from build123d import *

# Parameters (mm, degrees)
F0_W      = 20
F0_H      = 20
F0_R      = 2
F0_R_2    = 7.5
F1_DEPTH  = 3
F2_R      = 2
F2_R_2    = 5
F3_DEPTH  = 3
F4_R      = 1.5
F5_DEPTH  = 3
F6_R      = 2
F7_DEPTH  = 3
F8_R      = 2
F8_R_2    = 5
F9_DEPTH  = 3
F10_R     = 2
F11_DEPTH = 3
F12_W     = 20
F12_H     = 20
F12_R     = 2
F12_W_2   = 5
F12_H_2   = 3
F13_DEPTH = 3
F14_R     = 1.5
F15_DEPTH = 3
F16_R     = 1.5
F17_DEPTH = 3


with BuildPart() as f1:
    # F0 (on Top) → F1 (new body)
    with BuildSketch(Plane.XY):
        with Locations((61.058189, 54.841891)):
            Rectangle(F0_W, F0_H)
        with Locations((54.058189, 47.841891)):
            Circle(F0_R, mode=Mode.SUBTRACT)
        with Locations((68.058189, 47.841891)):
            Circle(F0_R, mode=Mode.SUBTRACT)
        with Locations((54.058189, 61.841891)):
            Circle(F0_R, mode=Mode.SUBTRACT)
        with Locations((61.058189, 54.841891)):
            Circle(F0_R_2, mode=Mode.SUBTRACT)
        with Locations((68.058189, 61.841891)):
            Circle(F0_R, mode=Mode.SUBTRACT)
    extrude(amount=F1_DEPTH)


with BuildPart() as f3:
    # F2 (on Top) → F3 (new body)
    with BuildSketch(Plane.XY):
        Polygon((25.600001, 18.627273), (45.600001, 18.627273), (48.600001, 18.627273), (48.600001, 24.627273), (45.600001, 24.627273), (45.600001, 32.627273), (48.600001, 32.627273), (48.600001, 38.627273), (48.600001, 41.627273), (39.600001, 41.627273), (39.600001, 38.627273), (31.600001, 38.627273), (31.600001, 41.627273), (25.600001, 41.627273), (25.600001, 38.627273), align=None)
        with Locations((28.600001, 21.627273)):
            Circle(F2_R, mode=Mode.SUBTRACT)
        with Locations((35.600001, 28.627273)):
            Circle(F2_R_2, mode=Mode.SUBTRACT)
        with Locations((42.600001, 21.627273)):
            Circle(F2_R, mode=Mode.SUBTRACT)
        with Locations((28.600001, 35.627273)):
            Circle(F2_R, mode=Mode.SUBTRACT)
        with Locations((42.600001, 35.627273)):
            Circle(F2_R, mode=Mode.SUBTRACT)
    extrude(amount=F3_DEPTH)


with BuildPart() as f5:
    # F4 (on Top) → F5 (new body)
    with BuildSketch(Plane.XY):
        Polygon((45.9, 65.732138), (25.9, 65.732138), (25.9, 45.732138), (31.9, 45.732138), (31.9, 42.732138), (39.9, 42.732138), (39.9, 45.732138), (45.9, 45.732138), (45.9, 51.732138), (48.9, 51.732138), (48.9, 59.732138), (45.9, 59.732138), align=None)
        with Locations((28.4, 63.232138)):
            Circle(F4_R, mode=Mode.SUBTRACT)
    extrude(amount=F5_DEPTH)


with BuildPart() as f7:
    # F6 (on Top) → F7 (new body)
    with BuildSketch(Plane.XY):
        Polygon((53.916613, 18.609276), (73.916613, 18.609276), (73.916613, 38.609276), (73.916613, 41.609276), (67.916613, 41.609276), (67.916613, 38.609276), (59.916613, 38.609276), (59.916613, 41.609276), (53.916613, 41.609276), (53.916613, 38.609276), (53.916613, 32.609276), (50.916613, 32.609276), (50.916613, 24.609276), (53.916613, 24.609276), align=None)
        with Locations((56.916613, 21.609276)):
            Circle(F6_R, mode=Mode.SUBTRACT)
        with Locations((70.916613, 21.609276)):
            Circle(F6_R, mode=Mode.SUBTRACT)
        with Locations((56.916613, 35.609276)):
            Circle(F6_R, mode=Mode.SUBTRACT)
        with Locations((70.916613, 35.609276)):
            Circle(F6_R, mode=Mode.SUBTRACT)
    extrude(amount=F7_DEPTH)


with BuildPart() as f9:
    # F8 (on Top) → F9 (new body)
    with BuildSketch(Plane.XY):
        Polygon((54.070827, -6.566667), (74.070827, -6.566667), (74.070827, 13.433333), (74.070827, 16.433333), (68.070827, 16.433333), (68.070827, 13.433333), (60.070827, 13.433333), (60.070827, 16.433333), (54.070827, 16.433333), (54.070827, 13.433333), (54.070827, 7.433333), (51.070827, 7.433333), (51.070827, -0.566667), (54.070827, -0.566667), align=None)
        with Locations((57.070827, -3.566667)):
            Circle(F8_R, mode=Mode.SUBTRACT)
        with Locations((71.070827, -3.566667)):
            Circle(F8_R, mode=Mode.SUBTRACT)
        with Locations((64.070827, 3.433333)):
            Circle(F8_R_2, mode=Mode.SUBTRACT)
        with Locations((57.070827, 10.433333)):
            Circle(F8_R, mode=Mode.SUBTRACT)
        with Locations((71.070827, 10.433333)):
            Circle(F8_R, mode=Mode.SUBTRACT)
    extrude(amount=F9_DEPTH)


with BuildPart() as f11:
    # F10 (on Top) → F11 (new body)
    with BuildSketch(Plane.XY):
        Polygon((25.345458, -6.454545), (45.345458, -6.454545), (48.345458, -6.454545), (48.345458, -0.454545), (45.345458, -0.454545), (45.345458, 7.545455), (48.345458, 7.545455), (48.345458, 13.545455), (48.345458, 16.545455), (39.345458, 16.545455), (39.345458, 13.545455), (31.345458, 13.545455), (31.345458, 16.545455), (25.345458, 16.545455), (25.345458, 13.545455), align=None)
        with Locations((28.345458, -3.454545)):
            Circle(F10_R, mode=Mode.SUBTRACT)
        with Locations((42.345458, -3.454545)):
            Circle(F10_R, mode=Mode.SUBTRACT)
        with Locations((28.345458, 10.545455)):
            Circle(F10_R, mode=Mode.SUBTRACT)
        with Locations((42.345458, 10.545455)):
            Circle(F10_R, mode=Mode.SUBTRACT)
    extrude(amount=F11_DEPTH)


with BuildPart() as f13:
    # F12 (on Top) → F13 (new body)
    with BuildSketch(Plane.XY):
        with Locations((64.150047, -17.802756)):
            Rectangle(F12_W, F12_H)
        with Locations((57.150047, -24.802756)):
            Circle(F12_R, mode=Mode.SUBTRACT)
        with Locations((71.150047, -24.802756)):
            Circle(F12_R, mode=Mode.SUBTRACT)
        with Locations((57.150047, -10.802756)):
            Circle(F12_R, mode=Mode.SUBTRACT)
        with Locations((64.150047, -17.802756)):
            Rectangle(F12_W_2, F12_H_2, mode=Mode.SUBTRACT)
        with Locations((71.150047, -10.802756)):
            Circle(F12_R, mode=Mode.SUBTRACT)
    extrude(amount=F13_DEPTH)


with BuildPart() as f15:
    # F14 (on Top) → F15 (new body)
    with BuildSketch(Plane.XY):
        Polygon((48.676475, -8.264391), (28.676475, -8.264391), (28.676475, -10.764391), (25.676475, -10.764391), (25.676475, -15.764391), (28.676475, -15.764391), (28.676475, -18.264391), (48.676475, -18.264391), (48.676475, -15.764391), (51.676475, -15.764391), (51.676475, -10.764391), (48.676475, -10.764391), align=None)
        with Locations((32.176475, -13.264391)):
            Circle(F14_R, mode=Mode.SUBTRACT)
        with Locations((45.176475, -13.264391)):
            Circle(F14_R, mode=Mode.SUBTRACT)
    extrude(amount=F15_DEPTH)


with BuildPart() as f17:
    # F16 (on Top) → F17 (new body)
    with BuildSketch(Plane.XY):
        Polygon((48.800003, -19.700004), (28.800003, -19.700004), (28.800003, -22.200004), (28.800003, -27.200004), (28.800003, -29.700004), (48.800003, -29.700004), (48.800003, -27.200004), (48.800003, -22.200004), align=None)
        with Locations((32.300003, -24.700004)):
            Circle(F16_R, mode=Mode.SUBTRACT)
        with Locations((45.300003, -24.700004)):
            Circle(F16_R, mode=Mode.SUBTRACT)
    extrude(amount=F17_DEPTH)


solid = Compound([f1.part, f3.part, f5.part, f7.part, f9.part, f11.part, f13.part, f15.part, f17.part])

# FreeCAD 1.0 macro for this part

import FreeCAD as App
import Part
import Sketcher


def add_polygon(sketch, points):
    """Adds a closed chain of lines whose ends are joined by coincident constraints."""
    first, n = sketch.GeometryCount, len(points)
    for a, b in zip(points, points[1:] + points[:1]):
        sketch.addGeometry(Part.LineSegment(App.Vector(*a, 0), App.Vector(*b, 0)), False)
    for i in range(n):
        sketch.addConstraint(Sketcher.Constraint("Coincident", first + i, 2, first + (i + 1) % n, 1))

doc = App.newDocument("Part")
body = doc.addObject("PartDesign::Body", "Body")

sketch1 = doc.addObject("Sketcher::SketchObject", "Sketch")
body.addObject(sketch1)
sketch1.AttachmentSupport = (doc.XY_Plane, [""])
sketch1.MapMode = "FlatFace"
add_polygon(sketch1, [(51.1, 64.8), (51.1, 44.8), (71.1, 44.8), (71.1, 64.8)])
sketch1.addGeometry(Part.Circle(App.Vector(54.1, 47.8, 0), App.Vector(0, 0, 1), 2), False)
sketch1.addGeometry(Part.Circle(App.Vector(68.1, 47.8, 0), App.Vector(0, 0, 1), 2), False)
sketch1.addGeometry(Part.Circle(App.Vector(54.1, 61.8, 0), App.Vector(0, 0, 1), 2), False)
sketch1.addGeometry(Part.Circle(App.Vector(61.1, 54.8, 0), App.Vector(0, 0, 1), 7.5), False)
sketch1.addGeometry(Part.Circle(App.Vector(68.1, 61.8, 0), App.Vector(0, 0, 1), 2), False)
sketch1.addConstraint([
    Sketcher.Constraint("Vertical", 0),
    Sketcher.Constraint("Horizontal", 1),
    Sketcher.Constraint("Vertical", 2),
    Sketcher.Constraint("Horizontal", 3),
    Sketcher.Constraint("Equal", 4, 5),
    Sketcher.Constraint("Equal", 5, 6),
    Sketcher.Constraint("Equal", 6, 8),
    Sketcher.Constraint("Horizontal", 4, 3, 5, 3),
    Sketcher.Constraint("Horizontal", 6, 3, 8, 3),
    Sketcher.Constraint("Vertical", 4, 3, 6, 3),
    Sketcher.Constraint("Vertical", 5, 3, 8, 3),
    Sketcher.Constraint("Equal", 3, 0),
    Sketcher.Constraint("Diameter", 4, 4.0),
    Sketcher.Constraint("Diameter", 7, 15.0),
    Sketcher.Constraint("DistanceX", 1, 1, 1, 2, 20.0),
    Sketcher.Constraint("DistanceX", 4, 3, 5, 3, 14.0),
    Sketcher.Constraint("DistanceY", 4, 3, 6, 3, 14.0),
    Sketcher.Constraint("DistanceX", 4, 3, 7, 3, 7.0),
    Sketcher.Constraint("DistanceY", 4, 3, 7, 3, 7.0),
    Sketcher.Constraint("DistanceX", 0, 2, 4, 3, 3.0),
    Sketcher.Constraint("DistanceY", 0, 2, 4, 3, 3.0),
    Sketcher.Constraint("DistanceX", -1, 1, 4, 3, 54.058189),
    Sketcher.Constraint("DistanceY", -1, 1, 4, 3, 47.841891),
])
pad1 = doc.addObject("PartDesign::Pad", "Pad")
body.addObject(pad1)
pad1.Profile = sketch1
pad1.Length = 3
body2 = doc.addObject("PartDesign::Body", "Body001")

sketch2 = doc.addObject("Sketcher::SketchObject", "Sketch001")
body2.addObject(sketch2)
sketch2.AttachmentSupport = (doc.getObject("XY_Plane001"), [""])
sketch2.MapMode = "FlatFace"
add_polygon(sketch2, [(25.6, 18.6), (48.6, 18.6), (48.6, 24.6), (45.6, 24.6), (45.6, 32.6), (48.6, 32.6), (48.6, 41.6), (39.6, 41.6), (39.6, 38.6), (31.6, 38.6), (31.6, 41.6), (25.6, 41.6)])
sketch2.addGeometry(Part.Circle(App.Vector(28.6, 21.6, 0), App.Vector(0, 0, 1), 2), False)
sketch2.addGeometry(Part.Circle(App.Vector(42.6, 21.6, 0), App.Vector(0, 0, 1), 2), False)
sketch2.addGeometry(Part.Circle(App.Vector(35.6, 28.6, 0), App.Vector(0, 0, 1), 5), False)
sketch2.addGeometry(Part.Circle(App.Vector(28.6, 35.6, 0), App.Vector(0, 0, 1), 2), False)
sketch2.addGeometry(Part.Circle(App.Vector(42.6, 35.6, 0), App.Vector(0, 0, 1), 2), False)
sketch2.addConstraint([
    Sketcher.Constraint("Horizontal", 0),
    Sketcher.Constraint("Vertical", 1),
    Sketcher.Constraint("Horizontal", 2),
    Sketcher.Constraint("Vertical", 3),
    Sketcher.Constraint("Horizontal", 4),
    Sketcher.Constraint("Vertical", 5),
    Sketcher.Constraint("Horizontal", 6),
    Sketcher.Constraint("Vertical", 7),
    Sketcher.Constraint("Horizontal", 8),
    Sketcher.Constraint("Vertical", 9),
    Sketcher.Constraint("Horizontal", 10),
    Sketcher.Constraint("Vertical", 11),
    Sketcher.Constraint("Equal", 12, 13),
    Sketcher.Constraint("Equal", 13, 15),
    Sketcher.Constraint("Equal", 15, 16),
    Sketcher.Constraint("Horizontal", 12, 3, 13, 3),
    Sketcher.Constraint("Horizontal", 15, 3, 16, 3),
    Sketcher.Constraint("Horizontal", 6, 2, 9, 2),
    Sketcher.Constraint("Vertical", 12, 3, 15, 3),
    Sketcher.Constraint("Vertical", 13, 3, 16, 3),
    Sketcher.Constraint("Vertical", 1, 2, 4, 2),
    Sketcher.Constraint("Equal", 10, 1),
    Sketcher.Constraint("Equal", 8, 3),
    Sketcher.Constraint("Equal", 6, 5),
    Sketcher.Constraint("Equal", 4, 7),
    Sketcher.Constraint("Diameter", 12, 4.0),
    Sketcher.Constraint("Diameter", 14, 10.0),
    Sketcher.Constraint("DistanceX", 0, 1, 0, 2, 23.0),
    Sketcher.Constraint("DistanceX", 2, 2, 2, 1, 3.0),
    Sketcher.Constraint("DistanceX", 6, 2, 6, 1, 9.0),
    Sketcher.Constraint("DistanceX", 8, 2, 8, 1, 8.0),
    Sketcher.Constraint("DistanceX", 12, 3, 13, 3, 14.0),
    Sketcher.Constraint("DistanceX", 12, 3, 14, 3, 7.0),
    Sketcher.Constraint("DistanceY", 12, 3, 14, 3, 7.0),
    Sketcher.Constraint("DistanceY", 14, 3, 15, 3, 7.0),
    Sketcher.Constraint("DistanceX", 13, 3, 0, 2, 6.0),
    Sketcher.Constraint("DistanceY", 0, 2, 13, 3, 3.0),
    Sketcher.Constraint("DistanceX", -1, 1, 12, 3, 28.600001),
    Sketcher.Constraint("DistanceY", -1, 1, 12, 3, 21.627273),
])
pad2 = doc.addObject("PartDesign::Pad", "Pad001")
body2.addObject(pad2)
pad2.Profile = sketch2
pad2.Length = 3
body3 = doc.addObject("PartDesign::Body", "Body002")

sketch3 = doc.addObject("Sketcher::SketchObject", "Sketch002")
body3.addObject(sketch3)
sketch3.AttachmentSupport = (doc.getObject("XY_Plane002"), [""])
sketch3.MapMode = "FlatFace"
add_polygon(sketch3, [(45.9, 65.7), (25.9, 65.7), (25.9, 45.7), (31.9, 45.7), (31.9, 42.7), (39.9, 42.7), (39.9, 45.7), (45.9, 45.7), (45.9, 51.7), (48.9, 51.7), (48.9, 59.7), (45.9, 59.7)])
sketch3.addGeometry(Part.Circle(App.Vector(28.4, 63.2, 0), App.Vector(0, 0, 1), 1.5), False)
sketch3.addConstraint([
    Sketcher.Constraint("Horizontal", 0),
    Sketcher.Constraint("Vertical", 1),
    Sketcher.Constraint("Horizontal", 2),
    Sketcher.Constraint("Vertical", 3),
    Sketcher.Constraint("Horizontal", 4),
    Sketcher.Constraint("Vertical", 5),
    Sketcher.Constraint("Horizontal", 6),
    Sketcher.Constraint("Vertical", 7),
    Sketcher.Constraint("Horizontal", 8),
    Sketcher.Constraint("Vertical", 9),
    Sketcher.Constraint("Horizontal", 10),
    Sketcher.Constraint("Vertical", 11),
    Sketcher.Constraint("Horizontal", 2, 2, 5, 2),
    Sketcher.Constraint("Vertical", 7, 2, 10, 2),
    Sketcher.Constraint("Equal", 2, 6),
    Sketcher.Constraint("Equal", 0, 1),
    Sketcher.Constraint("Equal", 10, 3),
    Sketcher.Constraint("Equal", 6, 7),
    Sketcher.Constraint("Equal", 4, 9),
    Sketcher.Constraint("Diameter", 12, 3.0),
    Sketcher.Constraint("DistanceX", 0, 2, 0, 1, 20.0),
    Sketcher.Constraint("DistanceX", 2, 1, 2, 2, 6.0),
    Sketcher.Constraint("DistanceX", 8, 1, 8, 2, 3.0),
    Sketcher.Constraint("DistanceX", -1, 1, 12, 3, 28.4),
    Sketcher.Constraint("DistanceX", -1, 1, 0, 2, 25.9),
    Sketcher.Constraint("DistanceY", 12, 3, 0, 2, 2.5),
    Sketcher.Constraint("DistanceY", -1, 1, 0, 2, 65.732138),
])
pad3 = doc.addObject("PartDesign::Pad", "Pad002")
body3.addObject(pad3)
pad3.Profile = sketch3
pad3.Length = 3
body4 = doc.addObject("PartDesign::Body", "Body003")

sketch4 = doc.addObject("Sketcher::SketchObject", "Sketch003")
body4.addObject(sketch4)
sketch4.AttachmentSupport = (doc.getObject("XY_Plane003"), [""])
sketch4.MapMode = "FlatFace"
add_polygon(sketch4, [(53.9, 18.6), (73.9, 18.6), (73.9, 41.6), (67.9, 41.6), (67.9, 38.6), (59.9, 38.6), (59.9, 41.6), (53.9, 41.6), (53.9, 32.6), (50.9, 32.6), (50.9, 24.6), (53.9, 24.6)])
sketch4.addGeometry(Part.Circle(App.Vector(56.9, 21.6, 0), App.Vector(0, 0, 1), 2), False)
sketch4.addGeometry(Part.Circle(App.Vector(70.9, 21.6, 0), App.Vector(0, 0, 1), 2), False)
sketch4.addGeometry(Part.Circle(App.Vector(56.9, 35.6, 0), App.Vector(0, 0, 1), 2), False)
sketch4.addGeometry(Part.Circle(App.Vector(70.9, 35.6, 0), App.Vector(0, 0, 1), 2), False)
sketch4.addConstraint([
    Sketcher.Constraint("Horizontal", 0),
    Sketcher.Constraint("Vertical", 1),
    Sketcher.Constraint("Horizontal", 2),
    Sketcher.Constraint("Vertical", 3),
    Sketcher.Constraint("Horizontal", 4),
    Sketcher.Constraint("Vertical", 5),
    Sketcher.Constraint("Horizontal", 6),
    Sketcher.Constraint("Vertical", 7),
    Sketcher.Constraint("Horizontal", 8),
    Sketcher.Constraint("Vertical", 9),
    Sketcher.Constraint("Horizontal", 10),
    Sketcher.Constraint("Vertical", 11),
    Sketcher.Constraint("Equal", 12, 13),
    Sketcher.Constraint("Equal", 13, 14),
    Sketcher.Constraint("Equal", 14, 15),
    Sketcher.Constraint("Horizontal", 12, 3, 13, 3),
    Sketcher.Constraint("Horizontal", 14, 3, 15, 3),
    Sketcher.Constraint("Horizontal", 2, 2, 5, 2),
    Sketcher.Constraint("Vertical", 12, 3, 14, 3),
    Sketcher.Constraint("Vertical", 13, 3, 15, 3),
    Sketcher.Constraint("Vertical", 7, 2, 10, 2),
    Sketcher.Constraint("Equal", 2, 6),
    Sketcher.Constraint("Equal", 10, 3),
    Sketcher.Constraint("Equal", 4, 9),
    Sketcher.Constraint("Equal", 6, 11),
    Sketcher.Constraint("Diameter", 12, 4.0),
    Sketcher.Constraint("DistanceX", 0, 1, 0, 2, 20.0),
    Sketcher.Constraint("DistanceX", 2, 2, 2, 1, 6.0),
    Sketcher.Constraint("DistanceX", 8, 2, 8, 1, 3.0),
    Sketcher.Constraint("DistanceY", 1, 1, 1, 2, 23.0),
    Sketcher.Constraint("DistanceX", 12, 3, 13, 3, 14.0),
    Sketcher.Constraint("DistanceY", 12, 3, 14, 3, 14.0),
    Sketcher.Constraint("DistanceX", 13, 3, 0, 2, 3.0),
    Sketcher.Constraint("DistanceY", 0, 2, 13, 3, 3.0),
    Sketcher.Constraint("DistanceX", -1, 1, 12, 3, 56.916613),
    Sketcher.Constraint("DistanceY", -1, 1, 12, 3, 21.609276),
])
pad4 = doc.addObject("PartDesign::Pad", "Pad003")
body4.addObject(pad4)
pad4.Profile = sketch4
pad4.Length = 3
body5 = doc.addObject("PartDesign::Body", "Body004")

sketch5 = doc.addObject("Sketcher::SketchObject", "Sketch004")
body5.addObject(sketch5)
sketch5.AttachmentSupport = (doc.getObject("XY_Plane004"), [""])
sketch5.MapMode = "FlatFace"
add_polygon(sketch5, [(54.1, -6.6), (74.1, -6.6), (74.1, 16.4), (68.1, 16.4), (68.1, 13.4), (60.1, 13.4), (60.1, 16.4), (54.1, 16.4), (54.1, 7.4), (51.1, 7.4), (51.1, -0.6), (54.1, -0.6)])
sketch5.addGeometry(Part.Circle(App.Vector(57.1, -3.6, 0), App.Vector(0, 0, 1), 2), False)
sketch5.addGeometry(Part.Circle(App.Vector(71.1, -3.6, 0), App.Vector(0, 0, 1), 2), False)
sketch5.addGeometry(Part.Circle(App.Vector(64.1, 3.4, 0), App.Vector(0, 0, 1), 5), False)
sketch5.addGeometry(Part.Circle(App.Vector(57.1, 10.4, 0), App.Vector(0, 0, 1), 2), False)
sketch5.addGeometry(Part.Circle(App.Vector(71.1, 10.4, 0), App.Vector(0, 0, 1), 2), False)
sketch5.addConstraint([
    Sketcher.Constraint("Horizontal", 0),
    Sketcher.Constraint("Vertical", 1),
    Sketcher.Constraint("Horizontal", 2),
    Sketcher.Constraint("Vertical", 3),
    Sketcher.Constraint("Horizontal", 4),
    Sketcher.Constraint("Vertical", 5),
    Sketcher.Constraint("Horizontal", 6),
    Sketcher.Constraint("Vertical", 7),
    Sketcher.Constraint("Horizontal", 8),
    Sketcher.Constraint("Vertical", 9),
    Sketcher.Constraint("Horizontal", 10),
    Sketcher.Constraint("Vertical", 11),
    Sketcher.Constraint("Equal", 12, 13),
    Sketcher.Constraint("Equal", 13, 15),
    Sketcher.Constraint("Equal", 15, 16),
    Sketcher.Constraint("Horizontal", 12, 3, 13, 3),
    Sketcher.Constraint("Horizontal", 15, 3, 16, 3),
    Sketcher.Constraint("Horizontal", 2, 2, 5, 2),
    Sketcher.Constraint("Vertical", 12, 3, 15, 3),
    Sketcher.Constraint("Vertical", 13, 3, 16, 3),
    Sketcher.Constraint("Vertical", 7, 2, 10, 2),
    Sketcher.Constraint("Equal", 2, 6),
    Sketcher.Constraint("Equal", 10, 3),
    Sketcher.Constraint("Equal", 4, 9),
    Sketcher.Constraint("Equal", 6, 11),
    Sketcher.Constraint("Diameter", 12, 4.0),
    Sketcher.Constraint("Diameter", 14, 10.0),
    Sketcher.Constraint("DistanceX", 0, 1, 0, 2, 20.0),
    Sketcher.Constraint("DistanceX", 2, 2, 2, 1, 6.0),
    Sketcher.Constraint("DistanceX", 8, 2, 8, 1, 3.0),
    Sketcher.Constraint("DistanceY", 1, 1, 1, 2, 23.0),
    Sketcher.Constraint("DistanceX", 12, 3, 13, 3, 14.0),
    Sketcher.Constraint("DistanceX", 12, 3, 14, 3, 7.0),
    Sketcher.Constraint("DistanceY", 12, 3, 14, 3, 7.0),
    Sketcher.Constraint("DistanceY", 14, 3, 15, 3, 7.0),
    Sketcher.Constraint("DistanceX", 13, 3, 0, 2, 3.0),
    Sketcher.Constraint("DistanceY", 0, 2, 13, 3, 3.0),
    Sketcher.Constraint("DistanceX", -1, 1, 12, 3, 57.070827),
    Sketcher.Constraint("DistanceY", 12, 3, -1, 1, 3.566667),
])
pad5 = doc.addObject("PartDesign::Pad", "Pad004")
body5.addObject(pad5)
pad5.Profile = sketch5
pad5.Length = 3
body6 = doc.addObject("PartDesign::Body", "Body005")

sketch6 = doc.addObject("Sketcher::SketchObject", "Sketch005")
body6.addObject(sketch6)
sketch6.AttachmentSupport = (doc.getObject("XY_Plane005"), [""])
sketch6.MapMode = "FlatFace"
add_polygon(sketch6, [(25.3, -6.5), (48.3, -6.5), (48.3, -0.5), (45.3, -0.5), (45.3, 7.5), (48.3, 7.5), (48.3, 16.5), (39.3, 16.5), (39.3, 13.5), (31.3, 13.5), (31.3, 16.5), (25.3, 16.5)])
sketch6.addGeometry(Part.Circle(App.Vector(28.3, -3.5, 0), App.Vector(0, 0, 1), 2), False)
sketch6.addGeometry(Part.Circle(App.Vector(42.3, -3.5, 0), App.Vector(0, 0, 1), 2), False)
sketch6.addGeometry(Part.Circle(App.Vector(28.3, 10.5, 0), App.Vector(0, 0, 1), 2), False)
sketch6.addGeometry(Part.Circle(App.Vector(42.3, 10.5, 0), App.Vector(0, 0, 1), 2), False)
sketch6.addConstraint([
    Sketcher.Constraint("Horizontal", 0),
    Sketcher.Constraint("Vertical", 1),
    Sketcher.Constraint("Horizontal", 2),
    Sketcher.Constraint("Vertical", 3),
    Sketcher.Constraint("Horizontal", 4),
    Sketcher.Constraint("Vertical", 5),
    Sketcher.Constraint("Horizontal", 6),
    Sketcher.Constraint("Vertical", 7),
    Sketcher.Constraint("Horizontal", 8),
    Sketcher.Constraint("Vertical", 9),
    Sketcher.Constraint("Horizontal", 10),
    Sketcher.Constraint("Vertical", 11),
    Sketcher.Constraint("Equal", 12, 13),
    Sketcher.Constraint("Equal", 13, 14),
    Sketcher.Constraint("Equal", 14, 15),
    Sketcher.Constraint("Horizontal", 12, 3, 13, 3),
    Sketcher.Constraint("Horizontal", 14, 3, 15, 3),
    Sketcher.Constraint("Horizontal", 6, 2, 9, 2),
    Sketcher.Constraint("Vertical", 12, 3, 14, 3),
    Sketcher.Constraint("Vertical", 13, 3, 15, 3),
    Sketcher.Constraint("Vertical", 1, 2, 4, 2),
    Sketcher.Constraint("Equal", 10, 1),
    Sketcher.Constraint("Equal", 8, 3),
    Sketcher.Constraint("Equal", 6, 5),
    Sketcher.Constraint("Equal", 4, 7),
    Sketcher.Constraint("Diameter", 12, 4.0),
    Sketcher.Constraint("DistanceX", 0, 1, 0, 2, 23.0),
    Sketcher.Constraint("DistanceX", 2, 2, 2, 1, 3.0),
    Sketcher.Constraint("DistanceX", 6, 2, 6, 1, 9.0),
    Sketcher.Constraint("DistanceX", 8, 2, 8, 1, 8.0),
    Sketcher.Constraint("DistanceX", 12, 3, 13, 3, 14.0),
    Sketcher.Constraint("DistanceY", 12, 3, 14, 3, 14.0),
    Sketcher.Constraint("DistanceX", 13, 3, 0, 2, 6.0),
    Sketcher.Constraint("DistanceY", 0, 2, 13, 3, 3.0),
    Sketcher.Constraint("DistanceX", -1, 1, 12, 3, 28.345458),
    Sketcher.Constraint("DistanceY", 12, 3, -1, 1, 3.454545),
])
pad6 = doc.addObject("PartDesign::Pad", "Pad005")
body6.addObject(pad6)
pad6.Profile = sketch6
pad6.Length = 3
body7 = doc.addObject("PartDesign::Body", "Body006")

sketch7 = doc.addObject("Sketcher::SketchObject", "Sketch006")
body7.addObject(sketch7)
sketch7.AttachmentSupport = (doc.getObject("XY_Plane006"), [""])
sketch7.MapMode = "FlatFace"
add_polygon(sketch7, [(54.2, -7.8), (54.2, -27.8), (74.2, -27.8), (74.2, -7.8)])
sketch7.addGeometry(Part.Circle(App.Vector(57.2, -24.8, 0), App.Vector(0, 0, 1), 2), False)
sketch7.addGeometry(Part.Circle(App.Vector(71.2, -24.8, 0), App.Vector(0, 0, 1), 2), False)
sketch7.addGeometry(Part.Circle(App.Vector(57.2, -10.8, 0), App.Vector(0, 0, 1), 2), False)
add_polygon(sketch7, [(66.7, -19.3), (61.7, -19.3), (61.7, -16.3), (66.7, -16.3)])
sketch7.addGeometry(Part.Circle(App.Vector(71.2, -10.8, 0), App.Vector(0, 0, 1), 2), False)
sketch7.addConstraint([
    Sketcher.Constraint("Vertical", 0),
    Sketcher.Constraint("Horizontal", 1),
    Sketcher.Constraint("Vertical", 2),
    Sketcher.Constraint("Horizontal", 3),
    Sketcher.Constraint("Horizontal", 7),
    Sketcher.Constraint("Vertical", 8),
    Sketcher.Constraint("Horizontal", 9),
    Sketcher.Constraint("Vertical", 10),
    Sketcher.Constraint("Equal", 4, 5),
    Sketcher.Constraint("Equal", 5, 6),
    Sketcher.Constraint("Equal", 6, 11),
    Sketcher.Constraint("Horizontal", 4, 3, 5, 3),
    Sketcher.Constraint("Horizontal", 6, 3, 11, 3),
    Sketcher.Constraint("Vertical", 4, 3, 6, 3),
    Sketcher.Constraint("Vertical", 5, 3, 11, 3),
    Sketcher.Constraint("Equal", 3, 0),
    Sketcher.Constraint("Diameter", 4, 4.0),
    Sketcher.Constraint("DistanceX", 1, 1, 1, 2, 20.0),
    Sketcher.Constraint("DistanceX", 7, 2, 7, 1, 5.0),
    Sketcher.Constraint("DistanceY", 8, 1, 8, 2, 3.0),
    Sketcher.Constraint("DistanceX", 4, 3, 5, 3, 14.0),
    Sketcher.Constraint("DistanceY", 4, 3, 6, 3, 14.0),
    Sketcher.Constraint("DistanceX", 0, 2, 4, 3, 3.0),
    Sketcher.Constraint("DistanceY", 0, 2, 4, 3, 3.0),
    Sketcher.Constraint("DistanceX", 4, 3, 7, 2, 4.5),
    Sketcher.Constraint("DistanceY", 4, 3, 7, 2, 5.5),
    Sketcher.Constraint("DistanceX", -1, 1, 4, 3, 57.150047),
    Sketcher.Constraint("DistanceY", 4, 3, -1, 1, 24.802756),
])
pad7 = doc.addObject("PartDesign::Pad", "Pad006")
body7.addObject(pad7)
pad7.Profile = sketch7
pad7.Length = 3
body8 = doc.addObject("PartDesign::Body", "Body007")

sketch8 = doc.addObject("Sketcher::SketchObject", "Sketch007")
body8.addObject(sketch8)
sketch8.AttachmentSupport = (doc.getObject("XY_Plane007"), [""])
sketch8.MapMode = "FlatFace"
add_polygon(sketch8, [(48.7, -8.3), (28.7, -8.3), (28.7, -10.8), (25.7, -10.8), (25.7, -15.8), (28.7, -15.8), (28.7, -18.3), (48.7, -18.3), (48.7, -15.8), (51.7, -15.8), (51.7, -10.8), (48.7, -10.8)])
sketch8.addGeometry(Part.Circle(App.Vector(32.2, -13.3, 0), App.Vector(0, 0, 1), 1.5), False)
sketch8.addGeometry(Part.Circle(App.Vector(45.2, -13.3, 0), App.Vector(0, 0, 1), 1.5), False)
sketch8.addConstraint([
    Sketcher.Constraint("Horizontal", 0),
    Sketcher.Constraint("Vertical", 1),
    Sketcher.Constraint("Horizontal", 2),
    Sketcher.Constraint("Vertical", 3),
    Sketcher.Constraint("Horizontal", 4),
    Sketcher.Constraint("Vertical", 5),
    Sketcher.Constraint("Horizontal", 6),
    Sketcher.Constraint("Vertical", 7),
    Sketcher.Constraint("Horizontal", 8),
    Sketcher.Constraint("Vertical", 9),
    Sketcher.Constraint("Horizontal", 10),
    Sketcher.Constraint("Vertical", 11),
    Sketcher.Constraint("Equal", 12, 13),
    Sketcher.Constraint("Horizontal", 12, 3, 13, 3),
    Sketcher.Constraint("Horizontal", 4, 2, 7, 2),
    Sketcher.Constraint("Horizontal", 2, 2, 9, 2),
    Sketcher.Constraint("Vertical", 1, 2, 4, 2),
    Sketcher.Constraint("Vertical", 7, 2, 10, 2),
    Sketcher.Constraint("Equal", 4, 8),
    Sketcher.Constraint("Equal", 1, 5),
    Sketcher.Constraint("Diameter", 12, 3.0),
    Sketcher.Constraint("DistanceX", 0, 2, 0, 1, 20.0),
    Sketcher.Constraint("DistanceX", 2, 2, 2, 1, 3.0),
    Sketcher.Constraint("DistanceY", 3, 2, 3, 1, 5.0),
    Sketcher.Constraint("DistanceY", 1, 2, 1, 1, 2.5),
    Sketcher.Constraint("DistanceX", 12, 3, 13, 3, 13.0),
    Sketcher.Constraint("DistanceY", 12, 3, 0, 2, 5.0),
    Sketcher.Constraint("DistanceX", 0, 2, 12, 3, 3.5),
    Sketcher.Constraint("DistanceY", 12, 3, -1, 1, 13.264391),
    Sketcher.Constraint("DistanceX", -1, 1, 12, 3, 32.176475),
])
pad8 = doc.addObject("PartDesign::Pad", "Pad007")
body8.addObject(pad8)
pad8.Profile = sketch8
pad8.Length = 3
body9 = doc.addObject("PartDesign::Body", "Body008")

sketch9 = doc.addObject("Sketcher::SketchObject", "Sketch008")
body9.addObject(sketch9)
sketch9.AttachmentSupport = (doc.getObject("XY_Plane008"), [""])
sketch9.MapMode = "FlatFace"
add_polygon(sketch9, [(48.8, -19.7), (28.8, -19.7), (28.8, -29.7), (48.8, -29.7)])
sketch9.addGeometry(Part.Circle(App.Vector(32.3, -24.7, 0), App.Vector(0, 0, 1), 1.5), False)
sketch9.addGeometry(Part.Circle(App.Vector(45.3, -24.7, 0), App.Vector(0, 0, 1), 1.5), False)
sketch9.addConstraint([
    Sketcher.Constraint("Horizontal", 0),
    Sketcher.Constraint("Vertical", 1),
    Sketcher.Constraint("Horizontal", 2),
    Sketcher.Constraint("Vertical", 3),
    Sketcher.Constraint("Equal", 4, 5),
    Sketcher.Constraint("Horizontal", 4, 3, 5, 3),
    Sketcher.Constraint("Diameter", 4, 3.0),
    Sketcher.Constraint("DistanceX", 0, 2, 0, 1, 20.0),
    Sketcher.Constraint("DistanceY", 1, 2, 1, 1, 10.0),
    Sketcher.Constraint("DistanceX", 4, 3, 5, 3, 13.0),
    Sketcher.Constraint("DistanceY", 4, 3, 0, 2, 5.0),
    Sketcher.Constraint("DistanceX", 0, 2, 4, 3, 3.5),
    Sketcher.Constraint("DistanceX", -1, 1, 4, 3, 32.300003),
    Sketcher.Constraint("DistanceY", 4, 3, -1, 1, 24.700004),
])
pad9 = doc.addObject("PartDesign::Pad", "Pad008")
body9.addObject(pad9)
pad9.Profile = sketch9
pad9.Length = 3

doc.recompute()
